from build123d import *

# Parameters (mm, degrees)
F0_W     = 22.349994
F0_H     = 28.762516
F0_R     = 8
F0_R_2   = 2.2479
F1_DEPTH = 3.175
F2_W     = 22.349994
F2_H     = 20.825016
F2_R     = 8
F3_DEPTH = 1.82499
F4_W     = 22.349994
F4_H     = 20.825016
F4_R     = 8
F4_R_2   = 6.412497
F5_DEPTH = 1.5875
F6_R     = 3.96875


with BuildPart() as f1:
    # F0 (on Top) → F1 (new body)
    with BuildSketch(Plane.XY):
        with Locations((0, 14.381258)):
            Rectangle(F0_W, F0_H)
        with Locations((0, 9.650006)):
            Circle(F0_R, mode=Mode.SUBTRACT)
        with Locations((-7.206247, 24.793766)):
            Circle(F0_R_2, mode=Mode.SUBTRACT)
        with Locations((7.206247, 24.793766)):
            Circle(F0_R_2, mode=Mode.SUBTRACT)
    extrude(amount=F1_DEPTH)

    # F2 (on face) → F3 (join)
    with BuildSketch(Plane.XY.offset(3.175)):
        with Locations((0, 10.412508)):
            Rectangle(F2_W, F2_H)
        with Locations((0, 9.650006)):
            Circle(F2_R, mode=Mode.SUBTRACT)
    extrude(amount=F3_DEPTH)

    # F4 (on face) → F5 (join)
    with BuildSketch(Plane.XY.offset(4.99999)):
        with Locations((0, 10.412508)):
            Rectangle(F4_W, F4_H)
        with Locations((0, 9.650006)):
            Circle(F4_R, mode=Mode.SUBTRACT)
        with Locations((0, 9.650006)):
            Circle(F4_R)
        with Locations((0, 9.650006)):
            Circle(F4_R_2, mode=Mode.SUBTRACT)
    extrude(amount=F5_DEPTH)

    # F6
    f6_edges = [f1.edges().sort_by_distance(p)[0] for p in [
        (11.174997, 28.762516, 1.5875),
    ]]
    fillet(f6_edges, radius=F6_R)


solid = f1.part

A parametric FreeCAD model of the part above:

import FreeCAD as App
import Part
import Sketcher
Q = App.Units.Quantity


def edges_at(feature, points):
    """Names of the edges that pass closest to the given points."""
    edges = feature.Shape.Edges
    near = lambda p: min(range(len(edges)), key=lambda i: edges[i].distToShape(Part.Vertex(*p))[0])
    return sorted({f"Edge{near(p) + 1}" for p in points})


def add_polygon(sketch, points):
    """Adds a closed chain of lines whose ends are joined by coincident constraints."""
    first, n = sketch.GeometryCount, len(points)
    for a, b in zip(points, points[1:] + points[:1]):
        sketch.addGeometry(Part.LineSegment(App.Vector(*a, 0), App.Vector(*b, 0)), False)
    for i in range(n):
        sketch.addConstraint(Sketcher.Constraint("Coincident", first + i, 2, first + (i + 1) % n, 1))

doc = App.newDocument("Part")
body = doc.addObject("PartDesign::Body", "Body")

# Sketch on XY plane
sketch1 = body.newObject("Sketcher::SketchObject", "Sketch")
sketch1.AttachmentSupport = (doc.getObject("XY_Plane"), [""])
sketch1.MapMode = "FlatFace"
add_polygon(sketch1, [(-11.174997, 28.762516), (-11.174997, 0), (11.174997, 0), (11.174997, 28.762516)])  # lines 0-3
sketch1.addGeometry(Part.Circle(App.Vector(0, 9.650006, 0), App.Vector(0, 0, 1), 8), False)  # 4
sketch1.addGeometry(Part.Circle(App.Vector(-7.206247, 24.793766, 0), App.Vector(0, 0, 1), 2.2479), False)  # 5
sketch1.addGeometry(Part.Circle(App.Vector(7.206247, 24.793766, 0), App.Vector(0, 0, 1), 2.2479), False)  # 6
sketch1.addConstraint(Sketcher.Constraint("Vertical", 0))
sketch1.addConstraint(Sketcher.Constraint("Horizontal", 1))
sketch1.addConstraint(Sketcher.Constraint("Vertical", 2))
sketch1.addConstraint(Sketcher.Constraint("Horizontal", 3))
sketch1.addConstraint(Sketcher.Constraint("Equal", 5, 6))
sketch1.addConstraint(Sketcher.Constraint("Symmetric", 0, 2, 1, 2, -1, 1))
sketch1.addConstraint(Sketcher.Constraint("Symmetric", 5, 3, 6, 3, -2))
sketch1.addConstraint(Sketcher.Constraint("PointOnObject", 4, 3, -2))
sketch1.addConstraint(Sketcher.Constraint("Diameter", 5, Q("0.177 in")))
sketch1.addConstraint(Sketcher.Constraint("Diameter", 4, Q("16 mm")))
sketch1.addConstraint(Sketcher.Constraint("DistanceX", 0, 2, 5, 3, Q("0.15625 in")))
sketch1.addConstraint(Sketcher.Constraint("DistanceY", 6, 3, 2, 2, Q("0.15625 in")))
sketch1.addConstraint(Sketcher.Constraint("DistanceX", 1, 1, 1, 2, Q("22.349994 mm")))
sketch1.addConstraint(Sketcher.Constraint("DistanceY", 0, 2, 0, 1, Q("28.762516 mm")))
sketch1.addConstraint(Sketcher.Constraint("DistanceY", 4, 3, 5, 3, Q("15.14376 mm")))
pad1 = body.newObject("PartDesign::Pad", "Pad")
pad1.Profile = sketch1
pad1.Length = Q("0.125 in")

# Sketch on XY plane
sketch2 = body.newObject("Sketcher::SketchObject", "Sketch001")
sketch2.AttachmentSupport = (doc.getObject("XY_Plane"), [""])
sketch2.MapMode = "FlatFace"
sketch2.AttachmentOffset = App.Placement(App.Vector(0, 0, 0.125 * 25.4), App.Rotation())
add_polygon(sketch2, [(-11.174997, 20.825016), (-11.174997, 0), (11.174997, 0), (11.174997, 20.825016)])  # lines 0-3
sketch2.addGeometry(Part.Circle(App.Vector(0, 9.650006, 0), App.Vector(0, 0, 1), 8), False)  # 4
sketch2.addConstraint(Sketcher.Constraint("Vertical", 0))
sketch2.addConstraint(Sketcher.Constraint("Horizontal", 1))
sketch2.addConstraint(Sketcher.Constraint("Vertical", 2))
sketch2.addConstraint(Sketcher.Constraint("Horizontal", 3))
sketch2.addConstraint(Sketcher.Constraint("Symmetric", 0, 2, 1, 2, -1, 1))
sketch2.addConstraint(Sketcher.Constraint("PointOnObject", 4, 3, -2))
sketch2.addConstraint(Sketcher.Constraint("Diameter", 4, Q("16 mm")))
sketch2.addConstraint(Sketcher.Constraint("DistanceX", 1, 1, 1, 2, Q("22.349994 mm")))
sketch2.addConstraint(Sketcher.Constraint("DistanceY", 0, 2, 0, 1, Q("20.825016 mm")))
sketch2.addConstraint(Sketcher.Constraint("DistanceY", 4, 3, 2, 2, Q("11.17501 mm")))
pad2 = body.newObject("PartDesign::Pad", "Pad001")
pad2.Profile = sketch2
pad2.Length = 1.82499

# Sketch on XY plane
sketch3 = body.newObject("Sketcher::SketchObject", "Sketch002")
sketch3.AttachmentSupport = (doc.getObject("XY_Plane"), [""])
sketch3.MapMode = "FlatFace"
sketch3.AttachmentOffset = App.Placement(App.Vector(0, 0, 4.99999), App.Rotation())
add_polygon(sketch3, [(-11.174997, 20.825016), (-11.174997, 0), (11.174997, 0), (11.174997, 20.825016)])  # lines 0-3
sketch3.addGeometry(Part.Circle(App.Vector(0, 9.650006, 0), App.Vector(0, 0, 1), 6.412497), False)  # 4
sketch3.addConstraint(Sketcher.Constraint("Vertical", 0))
sketch3.addConstraint(Sketcher.Constraint("Horizontal", 1))
sketch3.addConstraint(Sketcher.Constraint("Vertical", 2))
sketch3.addConstraint(Sketcher.Constraint("Horizontal", 3))
sketch3.addConstraint(Sketcher.Constraint("Symmetric", 0, 2, 1, 2, -1, 1))
sketch3.addConstraint(Sketcher.Constraint("PointOnObject", 4, 3, -2))
sketch3.addConstraint(Sketcher.Constraint("Diameter", 4, Q("12.824994 mm")))
sketch3.addConstraint(Sketcher.Constraint("DistanceX", 1, 1, 1, 2, Q("22.349994 mm")))
sketch3.addConstraint(Sketcher.Constraint("DistanceY", 0, 2, 0, 1, Q("20.825016 mm")))
sketch3.addConstraint(Sketcher.Constraint("DistanceY", 4, 3, 2, 2, Q("11.17501 mm")))
pad3 = body.newObject("PartDesign::Pad", "Pad002")
pad3.Profile = sketch3
pad3.Length = Q("0.0625 in")
doc.recompute()

fillet = body.newObject("PartDesign::Fillet", "Fillet")
fillet.Base = (pad3, edges_at(pad3, [(11.175, 28.763, 1.587)]))
fillet.Radius = Q("0.15625 in")

doc.recompute()
